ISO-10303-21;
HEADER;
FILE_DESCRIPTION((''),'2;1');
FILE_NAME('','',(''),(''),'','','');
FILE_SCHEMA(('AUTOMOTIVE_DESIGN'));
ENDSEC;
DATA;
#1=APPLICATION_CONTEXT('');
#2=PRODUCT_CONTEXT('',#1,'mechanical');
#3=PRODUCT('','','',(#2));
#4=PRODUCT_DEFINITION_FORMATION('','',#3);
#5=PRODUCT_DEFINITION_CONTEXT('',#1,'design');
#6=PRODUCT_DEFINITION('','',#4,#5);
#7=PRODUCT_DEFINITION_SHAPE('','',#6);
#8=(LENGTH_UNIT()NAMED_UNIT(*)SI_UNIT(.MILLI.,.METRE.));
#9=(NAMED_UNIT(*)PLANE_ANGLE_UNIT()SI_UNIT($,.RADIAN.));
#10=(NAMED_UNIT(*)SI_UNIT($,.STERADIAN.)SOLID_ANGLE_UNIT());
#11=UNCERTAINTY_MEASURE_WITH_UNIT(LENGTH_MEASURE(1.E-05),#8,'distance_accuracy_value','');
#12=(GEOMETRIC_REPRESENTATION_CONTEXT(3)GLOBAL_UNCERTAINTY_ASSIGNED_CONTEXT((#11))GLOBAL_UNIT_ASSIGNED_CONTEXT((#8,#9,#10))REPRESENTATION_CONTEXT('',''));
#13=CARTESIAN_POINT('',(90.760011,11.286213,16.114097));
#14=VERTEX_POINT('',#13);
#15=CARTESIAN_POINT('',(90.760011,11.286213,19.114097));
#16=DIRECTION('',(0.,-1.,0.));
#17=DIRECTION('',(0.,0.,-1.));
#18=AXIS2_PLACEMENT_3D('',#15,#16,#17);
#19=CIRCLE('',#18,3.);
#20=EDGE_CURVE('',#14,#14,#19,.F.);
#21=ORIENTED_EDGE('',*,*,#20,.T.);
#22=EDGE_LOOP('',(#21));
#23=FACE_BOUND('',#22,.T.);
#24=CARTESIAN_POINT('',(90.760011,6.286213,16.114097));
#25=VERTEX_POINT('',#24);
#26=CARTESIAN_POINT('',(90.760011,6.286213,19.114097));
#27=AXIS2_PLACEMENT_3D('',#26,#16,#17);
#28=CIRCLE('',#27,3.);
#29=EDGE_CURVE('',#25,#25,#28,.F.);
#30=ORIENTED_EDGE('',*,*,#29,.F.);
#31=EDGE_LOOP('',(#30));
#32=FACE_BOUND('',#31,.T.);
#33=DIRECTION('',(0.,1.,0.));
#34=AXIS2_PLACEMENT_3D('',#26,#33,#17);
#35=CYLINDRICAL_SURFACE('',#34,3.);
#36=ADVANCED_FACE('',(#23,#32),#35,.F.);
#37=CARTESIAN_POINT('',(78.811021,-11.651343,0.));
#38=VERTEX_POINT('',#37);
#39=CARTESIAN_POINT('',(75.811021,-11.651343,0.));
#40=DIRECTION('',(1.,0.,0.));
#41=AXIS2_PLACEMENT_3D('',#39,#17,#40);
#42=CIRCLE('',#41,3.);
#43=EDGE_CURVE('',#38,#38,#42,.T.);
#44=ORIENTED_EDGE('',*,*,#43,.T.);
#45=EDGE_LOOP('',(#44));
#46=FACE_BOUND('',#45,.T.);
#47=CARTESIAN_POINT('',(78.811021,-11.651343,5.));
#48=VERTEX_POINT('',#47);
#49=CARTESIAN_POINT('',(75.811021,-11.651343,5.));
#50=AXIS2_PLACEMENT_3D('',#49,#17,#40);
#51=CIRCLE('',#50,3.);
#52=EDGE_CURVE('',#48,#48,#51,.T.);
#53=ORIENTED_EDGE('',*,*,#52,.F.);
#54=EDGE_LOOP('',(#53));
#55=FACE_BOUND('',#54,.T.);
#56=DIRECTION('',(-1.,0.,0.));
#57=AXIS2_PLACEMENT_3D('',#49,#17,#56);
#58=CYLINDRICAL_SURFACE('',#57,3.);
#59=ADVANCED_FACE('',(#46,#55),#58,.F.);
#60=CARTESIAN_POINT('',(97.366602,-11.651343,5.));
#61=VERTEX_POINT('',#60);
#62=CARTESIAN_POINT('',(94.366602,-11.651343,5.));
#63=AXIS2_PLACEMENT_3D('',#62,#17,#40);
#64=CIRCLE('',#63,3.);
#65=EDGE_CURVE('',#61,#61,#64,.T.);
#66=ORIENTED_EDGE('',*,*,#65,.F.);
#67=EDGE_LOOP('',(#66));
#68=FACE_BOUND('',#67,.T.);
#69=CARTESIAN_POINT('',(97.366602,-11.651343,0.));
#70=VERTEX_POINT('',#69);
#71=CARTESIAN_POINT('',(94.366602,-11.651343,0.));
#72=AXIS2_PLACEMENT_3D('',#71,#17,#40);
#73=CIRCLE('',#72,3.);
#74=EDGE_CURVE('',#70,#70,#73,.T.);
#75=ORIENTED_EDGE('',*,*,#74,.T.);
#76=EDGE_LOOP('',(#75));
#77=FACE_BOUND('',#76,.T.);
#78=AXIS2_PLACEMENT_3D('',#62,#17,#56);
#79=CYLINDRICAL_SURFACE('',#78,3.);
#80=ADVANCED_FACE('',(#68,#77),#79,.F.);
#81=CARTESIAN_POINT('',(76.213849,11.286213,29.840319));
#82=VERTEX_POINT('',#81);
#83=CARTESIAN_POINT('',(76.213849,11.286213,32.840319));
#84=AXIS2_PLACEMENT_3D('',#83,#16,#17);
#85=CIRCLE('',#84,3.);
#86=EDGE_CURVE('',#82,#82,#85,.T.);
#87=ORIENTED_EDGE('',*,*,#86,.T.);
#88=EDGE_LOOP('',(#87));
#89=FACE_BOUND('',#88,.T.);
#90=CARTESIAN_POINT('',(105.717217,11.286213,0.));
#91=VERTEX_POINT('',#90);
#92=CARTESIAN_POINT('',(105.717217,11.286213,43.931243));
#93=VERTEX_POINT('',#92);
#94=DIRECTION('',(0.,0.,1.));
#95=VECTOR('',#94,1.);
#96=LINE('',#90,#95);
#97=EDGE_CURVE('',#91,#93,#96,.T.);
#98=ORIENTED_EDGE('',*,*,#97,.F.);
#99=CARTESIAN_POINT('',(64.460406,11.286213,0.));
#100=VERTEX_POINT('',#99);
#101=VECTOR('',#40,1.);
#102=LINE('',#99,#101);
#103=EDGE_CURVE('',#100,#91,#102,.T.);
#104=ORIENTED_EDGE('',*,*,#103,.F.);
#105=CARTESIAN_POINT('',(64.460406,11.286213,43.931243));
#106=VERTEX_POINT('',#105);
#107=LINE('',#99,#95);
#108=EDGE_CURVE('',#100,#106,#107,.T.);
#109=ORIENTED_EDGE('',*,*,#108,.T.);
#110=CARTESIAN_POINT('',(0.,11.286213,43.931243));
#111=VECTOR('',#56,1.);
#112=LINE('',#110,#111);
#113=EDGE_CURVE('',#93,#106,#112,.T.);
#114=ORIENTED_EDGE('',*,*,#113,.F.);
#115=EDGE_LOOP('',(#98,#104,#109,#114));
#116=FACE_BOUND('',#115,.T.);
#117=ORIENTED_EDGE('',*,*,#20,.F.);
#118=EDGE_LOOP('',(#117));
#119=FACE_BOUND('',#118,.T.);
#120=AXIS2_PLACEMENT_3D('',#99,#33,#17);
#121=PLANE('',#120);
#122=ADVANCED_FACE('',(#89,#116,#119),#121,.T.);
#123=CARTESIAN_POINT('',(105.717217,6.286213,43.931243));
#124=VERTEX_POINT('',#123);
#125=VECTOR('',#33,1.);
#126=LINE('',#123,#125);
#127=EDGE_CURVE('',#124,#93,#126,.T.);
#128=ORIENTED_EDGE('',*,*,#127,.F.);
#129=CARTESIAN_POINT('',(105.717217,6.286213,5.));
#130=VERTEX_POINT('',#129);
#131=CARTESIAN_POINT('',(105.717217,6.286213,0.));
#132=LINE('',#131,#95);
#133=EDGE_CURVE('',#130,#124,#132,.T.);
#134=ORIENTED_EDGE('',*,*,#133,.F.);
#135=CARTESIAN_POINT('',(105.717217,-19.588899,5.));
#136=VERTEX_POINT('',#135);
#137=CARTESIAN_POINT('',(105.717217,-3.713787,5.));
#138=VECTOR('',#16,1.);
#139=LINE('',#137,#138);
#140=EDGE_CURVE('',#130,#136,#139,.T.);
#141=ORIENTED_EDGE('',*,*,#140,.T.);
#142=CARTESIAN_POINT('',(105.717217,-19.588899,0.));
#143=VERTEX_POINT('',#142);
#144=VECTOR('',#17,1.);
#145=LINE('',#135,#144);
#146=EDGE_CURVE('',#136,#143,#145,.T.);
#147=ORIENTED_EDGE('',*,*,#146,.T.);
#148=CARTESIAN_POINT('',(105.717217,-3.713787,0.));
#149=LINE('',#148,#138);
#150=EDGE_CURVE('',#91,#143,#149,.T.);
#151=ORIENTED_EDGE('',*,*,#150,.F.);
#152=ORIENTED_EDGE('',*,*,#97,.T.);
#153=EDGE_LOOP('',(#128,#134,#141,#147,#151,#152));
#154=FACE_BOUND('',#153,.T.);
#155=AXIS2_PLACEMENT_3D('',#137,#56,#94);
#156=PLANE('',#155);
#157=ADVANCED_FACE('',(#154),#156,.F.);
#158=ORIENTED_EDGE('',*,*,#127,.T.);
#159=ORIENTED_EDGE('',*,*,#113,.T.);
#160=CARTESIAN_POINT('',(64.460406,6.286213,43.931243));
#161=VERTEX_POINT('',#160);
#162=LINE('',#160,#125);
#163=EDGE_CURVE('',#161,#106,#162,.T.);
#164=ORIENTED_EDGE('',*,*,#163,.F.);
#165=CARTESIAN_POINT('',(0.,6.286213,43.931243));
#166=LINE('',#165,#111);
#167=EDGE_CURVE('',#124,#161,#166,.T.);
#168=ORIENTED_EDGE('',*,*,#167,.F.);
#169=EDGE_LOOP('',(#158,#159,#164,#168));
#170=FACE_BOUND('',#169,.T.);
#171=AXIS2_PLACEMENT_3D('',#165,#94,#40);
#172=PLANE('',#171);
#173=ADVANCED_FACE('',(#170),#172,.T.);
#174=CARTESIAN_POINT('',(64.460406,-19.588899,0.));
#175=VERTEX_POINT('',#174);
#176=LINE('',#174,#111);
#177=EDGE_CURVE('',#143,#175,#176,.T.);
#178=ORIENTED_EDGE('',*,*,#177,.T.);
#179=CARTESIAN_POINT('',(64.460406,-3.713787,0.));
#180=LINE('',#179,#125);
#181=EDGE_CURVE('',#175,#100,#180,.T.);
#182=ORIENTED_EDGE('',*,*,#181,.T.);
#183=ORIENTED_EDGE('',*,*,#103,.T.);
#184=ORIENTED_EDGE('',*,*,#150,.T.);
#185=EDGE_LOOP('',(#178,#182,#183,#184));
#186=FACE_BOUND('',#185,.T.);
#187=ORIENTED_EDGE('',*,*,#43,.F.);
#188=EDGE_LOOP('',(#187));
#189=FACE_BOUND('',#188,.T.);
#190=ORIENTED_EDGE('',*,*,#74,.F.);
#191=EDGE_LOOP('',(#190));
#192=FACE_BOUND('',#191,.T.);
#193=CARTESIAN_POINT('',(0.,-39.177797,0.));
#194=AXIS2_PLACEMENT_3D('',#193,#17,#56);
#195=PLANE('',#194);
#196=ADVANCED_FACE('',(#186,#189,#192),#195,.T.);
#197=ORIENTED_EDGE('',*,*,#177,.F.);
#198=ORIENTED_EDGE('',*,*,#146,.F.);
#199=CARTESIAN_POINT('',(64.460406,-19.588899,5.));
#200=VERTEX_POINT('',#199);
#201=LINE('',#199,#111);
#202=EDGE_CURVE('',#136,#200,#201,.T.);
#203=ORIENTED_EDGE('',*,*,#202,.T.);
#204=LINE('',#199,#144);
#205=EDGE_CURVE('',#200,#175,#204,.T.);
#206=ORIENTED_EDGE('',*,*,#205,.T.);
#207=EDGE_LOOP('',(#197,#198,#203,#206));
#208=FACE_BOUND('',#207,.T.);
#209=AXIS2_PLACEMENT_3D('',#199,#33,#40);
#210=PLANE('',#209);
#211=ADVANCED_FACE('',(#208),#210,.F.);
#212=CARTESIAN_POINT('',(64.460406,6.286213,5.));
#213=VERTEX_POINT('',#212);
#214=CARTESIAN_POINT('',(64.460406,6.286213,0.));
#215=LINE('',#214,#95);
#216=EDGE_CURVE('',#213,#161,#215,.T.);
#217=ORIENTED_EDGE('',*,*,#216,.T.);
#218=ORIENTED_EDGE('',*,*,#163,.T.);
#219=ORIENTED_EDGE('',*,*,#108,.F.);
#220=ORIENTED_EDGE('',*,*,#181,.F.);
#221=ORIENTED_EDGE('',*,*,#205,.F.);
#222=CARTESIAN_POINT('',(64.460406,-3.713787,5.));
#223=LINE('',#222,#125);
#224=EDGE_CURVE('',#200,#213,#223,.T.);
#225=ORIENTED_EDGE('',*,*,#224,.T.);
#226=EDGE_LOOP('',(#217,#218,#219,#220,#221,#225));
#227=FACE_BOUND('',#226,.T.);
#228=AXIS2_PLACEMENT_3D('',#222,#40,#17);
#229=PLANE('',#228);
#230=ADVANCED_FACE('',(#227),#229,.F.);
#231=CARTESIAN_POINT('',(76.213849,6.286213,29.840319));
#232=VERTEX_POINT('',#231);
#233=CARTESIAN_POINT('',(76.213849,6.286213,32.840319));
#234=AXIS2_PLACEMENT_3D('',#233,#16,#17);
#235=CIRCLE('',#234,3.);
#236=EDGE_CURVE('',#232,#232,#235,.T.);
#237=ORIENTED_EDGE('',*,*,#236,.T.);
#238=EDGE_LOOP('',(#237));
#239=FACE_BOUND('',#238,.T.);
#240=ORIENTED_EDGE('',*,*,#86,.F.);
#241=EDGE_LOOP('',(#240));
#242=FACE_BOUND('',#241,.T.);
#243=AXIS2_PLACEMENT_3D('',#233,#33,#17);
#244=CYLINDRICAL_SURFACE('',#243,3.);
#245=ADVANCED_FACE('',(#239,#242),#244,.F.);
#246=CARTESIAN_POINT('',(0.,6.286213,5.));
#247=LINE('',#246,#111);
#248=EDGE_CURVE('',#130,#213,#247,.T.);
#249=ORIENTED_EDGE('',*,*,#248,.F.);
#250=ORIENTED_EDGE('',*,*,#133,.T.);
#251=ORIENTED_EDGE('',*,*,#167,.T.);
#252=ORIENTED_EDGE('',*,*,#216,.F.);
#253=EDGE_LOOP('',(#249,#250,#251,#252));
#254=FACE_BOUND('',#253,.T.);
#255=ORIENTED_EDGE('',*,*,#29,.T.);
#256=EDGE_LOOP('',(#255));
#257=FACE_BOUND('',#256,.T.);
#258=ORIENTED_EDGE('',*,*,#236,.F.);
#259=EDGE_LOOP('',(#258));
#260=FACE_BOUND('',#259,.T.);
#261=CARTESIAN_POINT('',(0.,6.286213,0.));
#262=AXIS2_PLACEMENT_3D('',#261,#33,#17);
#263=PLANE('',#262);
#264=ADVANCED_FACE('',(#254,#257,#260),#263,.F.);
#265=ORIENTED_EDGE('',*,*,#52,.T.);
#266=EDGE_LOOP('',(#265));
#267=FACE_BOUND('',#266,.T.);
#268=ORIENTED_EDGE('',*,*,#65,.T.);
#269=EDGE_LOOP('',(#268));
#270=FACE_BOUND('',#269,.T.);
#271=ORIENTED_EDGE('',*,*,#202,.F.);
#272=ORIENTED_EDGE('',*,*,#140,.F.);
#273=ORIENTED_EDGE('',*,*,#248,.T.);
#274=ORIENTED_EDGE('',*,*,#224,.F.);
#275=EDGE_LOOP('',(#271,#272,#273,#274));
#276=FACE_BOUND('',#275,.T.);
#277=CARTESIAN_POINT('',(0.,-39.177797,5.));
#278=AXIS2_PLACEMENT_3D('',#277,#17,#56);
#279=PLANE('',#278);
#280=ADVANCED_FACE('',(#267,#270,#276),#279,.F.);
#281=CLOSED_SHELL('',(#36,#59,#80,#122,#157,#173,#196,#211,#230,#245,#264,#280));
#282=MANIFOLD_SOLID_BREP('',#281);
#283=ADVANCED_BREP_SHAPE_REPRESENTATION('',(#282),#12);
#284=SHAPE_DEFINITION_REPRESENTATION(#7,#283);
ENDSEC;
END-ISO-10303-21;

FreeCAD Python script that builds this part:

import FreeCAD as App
import Part
import Sketcher
Q = App.Units.Quantity


def add_polygon(sketch, points):
    """Adds a closed chain of lines whose ends are joined by coincident constraints."""
    first, n = sketch.GeometryCount, len(points)
    for a, b in zip(points, points[1:] + points[:1]):
        sketch.addGeometry(Part.LineSegment(App.Vector(*a, 0), App.Vector(*b, 0)), False)
    for i in range(n):
        sketch.addConstraint(Sketcher.Constraint("Coincident", first + i, 2, first + (i + 1) % n, 1))

doc = App.newDocument("Part")
body = doc.addObject("PartDesign::Body", "Body")

# Sketch on XY plane
sketch1 = doc.addObject("Sketcher::SketchObject", "Sketch")
body.addObject(sketch1)
sketch1.AttachmentSupport = (doc.XY_Plane, [""])
sketch1.MapMode = "FlatFace"
add_polygon(sketch1, [(64.460406, -19.588899), (64.460406, -35.46401), (105.717217, -35.46401), (105.717217, -19.588899)])  # lines 0-3
sketch1.addGeometry(Part.Circle(App.Vector(75.811021, -27.526454, 0), App.Vector(0, 0, 1), 3), False)  # 4
sketch1.addGeometry(Part.Circle(App.Vector(94.366602, -27.526454, 0), App.Vector(0, 0, 1), 3), False)  # 5
sketch1.addConstraint([
    Sketcher.Constraint("Vertical", 0),
    Sketcher.Constraint("Horizontal", 1),
    Sketcher.Constraint("Vertical", 2),
    Sketcher.Constraint("Horizontal", 3),
    Sketcher.Constraint("Equal", 4, 5),
    Sketcher.Constraint("Horizontal", 4, 3, 5, 3),
    Sketcher.Constraint("Diameter", 4, Q("6 mm")),
    Sketcher.Constraint("DistanceX", 1, 1, 1, 2, Q("41.256811 mm")),
    Sketcher.Constraint("DistanceY", 0, 2, 0, 1, Q("15.875112 mm")),
    Sketcher.Constraint("DistanceX", -1, 1, 5, 3, Q("94.366602 mm")),
    Sketcher.Constraint("DistanceY", 2, 2, -1, 1, Q("19.588899 mm")),
    Sketcher.Constraint("DistanceX", -1, 1, 4, 3, Q("75.811021 mm")),
    Sketcher.Constraint("DistanceY", 4, 3, -1, 1, Q("27.526454 mm")),
    Sketcher.Constraint("DistanceX", -1, 1, 0, 2, Q("64.460406 mm")),
])
pad1 = doc.addObject("PartDesign::Pad", "Pad")
body.addObject(pad1)
pad1.Profile = sketch1
pad1.Length = 5

# Sketch on XY plane
sketch2 = doc.addObject("Sketcher::SketchObject", "Sketch001")
body.addObject(sketch2)
sketch2.AttachmentSupport = (doc.XY_Plane, [""])
sketch2.MapMode = "FlatFace"
sketch2.AttachmentOffset = App.Placement(App.Vector(0, 0, 5), App.Rotation())
add_polygon(sketch2, [(64.460406, -35.46401), (64.460406, -50.46401), (105.717217, -50.46401), (105.717217, -35.46401)])  # lines 0-3
sketch2.addConstraint([
    Sketcher.Constraint("Vertical", 0),
    Sketcher.Constraint("Horizontal", 1),
    Sketcher.Constraint("Vertical", 2),
    Sketcher.Constraint("Horizontal", 3),
    Sketcher.Constraint("DistanceY", 0, 2, 0, 1, Q("15 mm")),
    Sketcher.Constraint("DistanceX", 1, 1, 1, 2, Q("41.256811 mm")),
    Sketcher.Constraint("DistanceY", 0, 2, -1, 1, Q("50.46401 mm")),
    Sketcher.Constraint("DistanceX", -1, 1, 0, 2, Q("64.460406 mm")),
])
pad2 = doc.addObject("PartDesign::Pad", "Pad001")
body.addObject(pad2)
pad2.Profile = sketch2
pad2.Length = 5
pad2.Reversed = True

# Sketch on XZ plane
sketch3 = doc.addObject("Sketcher::SketchObject", "Sketch002")
body.addObject(sketch3)
sketch3.AttachmentSupport = (doc.XZ_Plane, [""])
sketch3.MapMode = "FlatFace"
sketch3.AttachmentOffset = App.Placement(App.Vector(0, 0, 50.46401), App.Rotation())
add_polygon(sketch3, [(64.460406, 43.931243), (64.460406, 5), (105.717217, 5), (105.717217, 43.931243)])  # lines 0-3
sketch3.addGeometry(Part.Circle(App.Vector(90.760011, 19.114097, 0), App.Vector(0, 0, 1), 3), False)  # 4
sketch3.addGeometry(Part.Circle(App.Vector(76.213849, 32.840319, 0), App.Vector(0, 0, 1), 3), False)  # 5
sketch3.addConstraint([
    Sketcher.Constraint("Vertical", 0),
    Sketcher.Constraint("Horizontal", 1),
    Sketcher.Constraint("Vertical", 2),
    Sketcher.Constraint("Horizontal", 3),
    Sketcher.Constraint("Equal", 4, 5),
    Sketcher.Constraint("Diameter", 4, Q("6 mm")),
    Sketcher.Constraint("DistanceY", -1, 1, 0, 2, Q("5 mm")),
    Sketcher.Constraint("DistanceX", 1, 1, 1, 2, Q("41.256811 mm")),
    Sketcher.Constraint("DistanceY", 0, 2, 0, 1, Q("38.931243 mm")),
    Sketcher.Constraint("DistanceX", -1, 1, 4, 3, Q("90.760011 mm")),
    Sketcher.Constraint("DistanceX", -1, 1, 5, 3, Q("76.213849 mm")),
    Sketcher.Constraint("DistanceY", -1, 1, 5, 3, Q("32.840319 mm")),
    Sketcher.Constraint("DistanceX", 5, 3, 1, 2, Q("29.503368 mm")),
    Sketcher.Constraint("DistanceY", -1, 1, 4, 3, Q("19.114097 mm")),
])
pad3 = doc.addObject("PartDesign::Pad", "Pad002")
body.addObject(pad3)
pad3.Profile = sketch3
pad3.Length = 5
pad3.Reversed = True
body2 = doc.addObject("PartDesign::Body", "Body001")
doc.recompute()

mirroring = doc.addObject("Part::Mirroring", "Mirroring")
mirroring.Source = body
mirroring.Base = App.Vector(64.460406, -19.588899, 5)
mirroring.Normal = App.Vector(0, -1, 0)
body2.BaseFeature = mirroring
doc.recompute()
body.Visibility = False
mirroring.Visibility = False

doc.recompute()
